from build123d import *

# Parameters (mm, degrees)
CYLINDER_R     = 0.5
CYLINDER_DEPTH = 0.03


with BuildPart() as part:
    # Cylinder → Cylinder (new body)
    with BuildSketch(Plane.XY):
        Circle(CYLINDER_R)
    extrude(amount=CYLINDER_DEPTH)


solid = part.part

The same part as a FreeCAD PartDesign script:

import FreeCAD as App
import Part
import Sketcher

V = App.Vector

doc = App.newDocument("Part")
body = doc.addObject("PartDesign::Body", "Body")

# Sketch on XY plane
sketch1 = doc.addObject("Sketcher::SketchObject", "Sketch")
body.addObject(sketch1)
sketch1.AttachmentSupport = (doc.XY_Plane, [""])
sketch1.MapMode = "FlatFace"
sketch1.addGeometry(Part.Circle(V(0, 0, 0), V(0, 0, 1), 0.5), False)
sketch1.addConstraint(Sketcher.Constraint("Coincident", 0, 3, -1, 1))
sketch1.addConstraint(Sketcher.Constraint("Diameter", 0, 1.0))
pad1 = doc.addObject("PartDesign::Pad", "Pad")
body.addObject(pad1)
pad1.Profile = sketch1
pad1.Length = 0.03

doc.recompute()
